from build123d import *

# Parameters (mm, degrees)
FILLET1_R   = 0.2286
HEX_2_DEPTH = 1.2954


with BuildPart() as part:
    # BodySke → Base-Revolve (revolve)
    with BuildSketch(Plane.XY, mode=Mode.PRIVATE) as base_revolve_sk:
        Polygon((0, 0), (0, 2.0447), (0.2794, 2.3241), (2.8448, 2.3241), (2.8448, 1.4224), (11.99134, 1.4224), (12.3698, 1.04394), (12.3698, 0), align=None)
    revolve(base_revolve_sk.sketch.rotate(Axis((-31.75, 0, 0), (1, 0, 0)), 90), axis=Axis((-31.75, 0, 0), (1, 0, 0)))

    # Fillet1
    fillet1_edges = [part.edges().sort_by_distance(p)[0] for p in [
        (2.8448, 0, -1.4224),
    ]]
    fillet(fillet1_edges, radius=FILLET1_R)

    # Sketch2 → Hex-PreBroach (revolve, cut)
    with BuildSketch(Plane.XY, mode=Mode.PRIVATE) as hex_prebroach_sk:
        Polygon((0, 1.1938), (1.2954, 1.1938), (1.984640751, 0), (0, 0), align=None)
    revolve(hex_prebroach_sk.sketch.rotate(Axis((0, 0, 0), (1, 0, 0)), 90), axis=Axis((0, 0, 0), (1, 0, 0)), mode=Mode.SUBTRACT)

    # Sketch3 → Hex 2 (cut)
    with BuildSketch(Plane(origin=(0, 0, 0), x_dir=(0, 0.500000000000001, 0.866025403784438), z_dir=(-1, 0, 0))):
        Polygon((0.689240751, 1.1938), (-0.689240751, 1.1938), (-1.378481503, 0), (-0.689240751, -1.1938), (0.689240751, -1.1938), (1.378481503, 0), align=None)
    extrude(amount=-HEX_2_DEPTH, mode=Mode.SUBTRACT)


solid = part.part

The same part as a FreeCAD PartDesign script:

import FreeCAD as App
import Part
import Sketcher

V = App.Vector
Q = App.Units.Quantity


def edges_at(feature, points):
    """Names of the edges that pass closest to the given points."""
    edges = feature.Shape.Edges
    near = lambda p: min(range(len(edges)), key=lambda i: edges[i].distToShape(Part.Vertex(*p))[0])
    return sorted({f"Edge{near(p) + 1}" for p in points})

doc = App.newDocument("Part")
body = doc.addObject("PartDesign::Body", "Body")

# Sketch on XY plane
sketch1 = body.newObject("Sketcher::SketchObject", "Sketch")
sketch1.AttachmentSupport = (doc.getObject("XY_Plane"), [""])
sketch1.MapMode = "FlatFace"
sketch1.addGeometry([
    Part.LineSegment(V(0, 2.0447, 0), V(0, 0, 0)),  # 0
    Part.LineSegment(V(0, 0, 0), V(12.3698, 0, 0)),  # 1
    Part.LineSegment(V(12.3698, 0, 0), V(12.3698, 1.04394, 0)),  # 2
    Part.LineSegment(V(12.3698, 1.04394, 0), V(11.99134, 1.4224, 0)),  # 3
    Part.LineSegment(V(11.99134, 1.4224, 0), V(2.8448, 1.4224, 0)),  # 4
    Part.LineSegment(V(2.8448, 1.4224, 0), V(2.8448, 2.3241, 0)),  # 5
    Part.LineSegment(V(2.8448, 2.3241, 0), V(0.2794, 2.3241, 0)),  # 6
    Part.LineSegment(V(0.2794, 2.3241, 0), V(0, 2.0447, 0)),  # 7
], False)
sketch1.addConstraint([
    Sketcher.Constraint("Coincident", 0, 2, 1, 1),
    Sketcher.Constraint("Coincident", 1, 2, 2, 1),
    Sketcher.Constraint("Coincident", 2, 2, 3, 1),
    Sketcher.Constraint("Coincident", 3, 2, 4, 1),
    Sketcher.Constraint("Coincident", 4, 2, 5, 1),
    Sketcher.Constraint("Coincident", 5, 2, 6, 1),
    Sketcher.Constraint("Coincident", 6, 2, 7, 1),
    Sketcher.Constraint("Coincident", 7, 2, 0, 1),
    Sketcher.Constraint("Vertical", 0),
    Sketcher.Constraint("Horizontal", 1),
    Sketcher.Constraint("Vertical", 2),
    Sketcher.Constraint("Horizontal", 4),
    Sketcher.Constraint("Vertical", 5),
    Sketcher.Constraint("Horizontal", 6),
    Sketcher.Constraint("Coincident", 0, 2, -1, 1),
    Sketcher.Constraint("Perpendicular", 3, 7),
    Sketcher.Constraint("Angle", 3, Q("135 deg")),
    Sketcher.Constraint("DistanceX", 1, 1, 1, 2, Q("0.487 in")),
    Sketcher.Constraint("DistanceX", 6, 2, 6, 1, Q("0.101 in")),
    Sketcher.Constraint("DistanceX", 4, 2, 4, 1, Q("0.3601 in")),
    Sketcher.Constraint("DistanceY", 0, 2, 0, 1, Q("0.0805 in")),
    Sketcher.Constraint("DistanceY", 2, 1, 2, 2, Q("0.0411 in")),
    Sketcher.Constraint("DistanceY", 5, 1, 5, 2, Q("0.0355 in")),
])
revolution = body.newObject("PartDesign::Revolution", "Revolution")
revolution.Profile = sketch1
revolution.ReferenceAxis = (sketch1, ["H_Axis"])
revolution.Angle = 360
doc.recompute()

fillet = body.newObject("PartDesign::Fillet", "Fillet")
fillet.Base = (revolution, edges_at(revolution, [(2.845, 0, -1.422)]))
fillet.Radius = Q("0.009 in")

# Sketch on XY plane
sketch2 = body.newObject("Sketcher::SketchObject", "Sketch001")
sketch2.AttachmentSupport = (doc.getObject("XY_Plane"), [""])
sketch2.MapMode = "FlatFace"
sketch2.addGeometry([
    Part.LineSegment(V(1.2954, 1.1938, 0), V(0, 1.1938, 0)),
    Part.LineSegment(V(0, 1.1938, 0), V(0, 0, 0)),
    Part.LineSegment(V(0, 0, 0), V(1.984641, 0, 0)),
    Part.LineSegment(V(1.984641, 0, 0), V(1.2954, 1.1938, 0)),
], False)
sketch2.addConstraint([
    Sketcher.Constraint("Coincident", 0, 2, 1, 1),
    Sketcher.Constraint("Coincident", 1, 2, 2, 1),
    Sketcher.Constraint("Coincident", 2, 2, 3, 1),
    Sketcher.Constraint("Coincident", 3, 2, 0, 1),
    Sketcher.Constraint("Horizontal", 0),
    Sketcher.Constraint("Vertical", 1),
    Sketcher.Constraint("Horizontal", 2),
    Sketcher.Constraint("Coincident", 1, 2, -1, 1),
    Sketcher.Constraint("Angle", 3, Q("120 deg")),
    Sketcher.Constraint("DistanceX", 0, 2, 0, 1, Q("0.051 in")),
    Sketcher.Constraint("DistanceY", 1, 2, 1, 1, Q("0.047 in")),
])
groove = body.newObject("PartDesign::Groove", "Groove")
groove.Profile = sketch2
groove.ReferenceAxis = (sketch2, ["H_Axis"])
groove.Angle = 360

# Sketch on YZ plane
sketch3 = body.newObject("Sketcher::SketchObject", "Sketch002")
sketch3.AttachmentSupport = (doc.getObject("YZ_Plane"), [""])
sketch3.MapMode = "FlatFace"
sketch3.addGeometry([
    Part.LineSegment(V(1.378482, 0, 0), V(0.689241, -1.1938, 0)),  # 0
    Part.LineSegment(V(0.689241, -1.1938, 0), V(-0.689241, -1.1938, 0)),  # 1
    Part.LineSegment(V(-0.689241, -1.1938, 0), V(-1.378482, 0, 0)),  # 2
    Part.LineSegment(V(-1.378482, 0, 0), V(-0.689241, 1.1938, 0)),  # 3
    Part.LineSegment(V(-0.689241, 1.1938, 0), V(0.689241, 1.1938, 0)),  # 4
    Part.LineSegment(V(0.689241, 1.1938, 0), V(1.378482, 0, 0)),  # 5
], False)
sketch3.addConstraint([
    Sketcher.Constraint("Coincident", 0, 2, 1, 1),
    Sketcher.Constraint("Coincident", 1, 2, 2, 1),
    Sketcher.Constraint("Coincident", 2, 2, 3, 1),
    Sketcher.Constraint("Coincident", 3, 2, 4, 1),
    Sketcher.Constraint("Coincident", 4, 2, 5, 1),
    Sketcher.Constraint("Coincident", 5, 2, 0, 1),
    Sketcher.Constraint("Horizontal", 1),
    Sketcher.Constraint("Horizontal", 4),
    Sketcher.Constraint("Symmetric", 0, 2, 3, 2, -1, 1),
    Sketcher.Constraint("Symmetric", 2, 2, 5, 2, -1, 1),
    Sketcher.Constraint("PointOnObject", 2, 2, -1),
    Sketcher.Constraint("Parallel", 2, 5),
    Sketcher.Constraint("Vertical", 1, 2, 3, 2),
    Sketcher.Constraint("Angle", 0, Q("-120 deg")),
    Sketcher.Constraint("DistanceY", 0, 2, -1, 1, Q("0.047 in")),
    Sketcher.Constraint("DistanceX", 1, 2, 1, 1, Q("1.378482 mm")),
])
pocket1 = body.newObject("PartDesign::Pocket", "Pocket")
pocket1.Profile = sketch3
pocket1.Length = Q("0.051 in")
pocket1.Reversed = True

doc.recompute()
